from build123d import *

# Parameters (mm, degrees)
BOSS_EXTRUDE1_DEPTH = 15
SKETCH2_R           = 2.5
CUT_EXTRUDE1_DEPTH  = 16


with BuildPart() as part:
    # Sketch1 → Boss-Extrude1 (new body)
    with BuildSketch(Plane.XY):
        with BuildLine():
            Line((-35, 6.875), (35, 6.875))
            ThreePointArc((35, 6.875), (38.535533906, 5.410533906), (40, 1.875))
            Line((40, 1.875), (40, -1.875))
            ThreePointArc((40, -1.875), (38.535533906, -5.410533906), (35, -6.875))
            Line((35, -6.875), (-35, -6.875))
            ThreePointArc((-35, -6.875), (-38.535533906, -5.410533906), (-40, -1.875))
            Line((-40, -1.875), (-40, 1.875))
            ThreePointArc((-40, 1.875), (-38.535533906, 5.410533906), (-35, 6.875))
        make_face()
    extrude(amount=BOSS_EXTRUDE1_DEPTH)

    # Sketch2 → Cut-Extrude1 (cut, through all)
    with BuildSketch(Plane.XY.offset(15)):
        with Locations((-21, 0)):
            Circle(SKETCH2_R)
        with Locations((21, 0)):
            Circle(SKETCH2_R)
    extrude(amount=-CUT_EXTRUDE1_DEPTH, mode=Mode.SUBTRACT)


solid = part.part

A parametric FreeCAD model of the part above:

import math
import FreeCAD as App
import Part
import Sketcher
from FreeCAD import Vector

doc = App.newDocument("Part")
body = doc.addObject("PartDesign::Body", "Body")

# Sketch on XY plane
sketch1 = doc.addObject("Sketcher::SketchObject", "Sketch")
body.addObject(sketch1)
sketch1.AttachmentSupport = (doc.XY_Plane, [""])
sketch1.MapMode = "FlatFace"
sketch1.addGeometry([
    Part.LineSegment(Vector(35, 6.9, 0), Vector(-35, 6.9, 0)),  # 0
    Part.ArcOfCircle(Part.Circle(Vector(-35, 1.9, 0), Vector(0, 0, 1), 5), math.radians(90), math.radians(180)),  # 1
    Part.LineSegment(Vector(-40, 1.9, 0), Vector(-40, -1.9, 0)),  # 2
    Part.ArcOfCircle(Part.Circle(Vector(-35, -1.9, 0), Vector(0, 0, 1), 5), math.radians(180), math.radians(270)),  # 3
    Part.LineSegment(Vector(-35, -6.9, 0), Vector(35, -6.9, 0)),  # 4
    Part.ArcOfCircle(Part.Circle(Vector(35, -1.9, 0), Vector(0, 0, 1), 5), math.radians(-90), math.radians(0)),  # 5
    Part.LineSegment(Vector(40, -1.9, 0), Vector(40, 1.9, 0)),  # 6
    Part.ArcOfCircle(Part.Circle(Vector(35, 1.9, 0), Vector(0, 0, 1), 5), math.radians(0), math.radians(90)),  # 7
], False)
sketch1.addConstraint([
    Sketcher.Constraint("Tangent", 0, 2, 1, 1),
    Sketcher.Constraint("Tangent", 1, 2, 2, 1),
    Sketcher.Constraint("Tangent", 2, 2, 3, 1),
    Sketcher.Constraint("Tangent", 3, 2, 4, 1),
    Sketcher.Constraint("Tangent", 4, 2, 5, 1),
    Sketcher.Constraint("Tangent", 5, 2, 6, 1),
    Sketcher.Constraint("Tangent", 6, 2, 7, 1),
    Sketcher.Constraint("Tangent", 7, 2, 0, 1),
    Sketcher.Constraint("Horizontal", 0),
    Sketcher.Constraint("Vertical", 2),
    Sketcher.Constraint("Horizontal", 4),
    Sketcher.Constraint("Vertical", 6),
    Sketcher.Constraint("Equal", 1, 3),
    Sketcher.Constraint("Equal", 3, 5),
    Sketcher.Constraint("Equal", 5, 7),
    Sketcher.Constraint("Symmetric", 1, 3, 5, 3, -1, 1),
    Sketcher.Constraint("Radius", 1, 5.0),
    Sketcher.Constraint("DistanceX", 0, 2, 0, 1, 70.0),
    Sketcher.Constraint("DistanceY", 2, 2, 2, 1, 3.75),
])
pad1 = doc.addObject("PartDesign::Pad", "Pad")
body.addObject(pad1)
pad1.Profile = sketch1
pad1.Length = 15

# Sketch on XY plane
sketch2 = doc.addObject("Sketcher::SketchObject", "Sketch001")
body.addObject(sketch2)
sketch2.AttachmentSupport = (doc.XY_Plane, [""])
sketch2.MapMode = "FlatFace"
sketch2.AttachmentOffset = App.Placement(Vector(0, 0, 15), App.Rotation())
sketch2.addGeometry([
    Part.Circle(Vector(-21, 0, 0), Vector(0, 0, 1), 2.5),
    Part.Circle(Vector(21, 0, 0), Vector(0, 0, 1), 2.5),
], False)
sketch2.addConstraint([
    Sketcher.Constraint("Equal", 0, 1),
    Sketcher.Constraint("Symmetric", 0, 3, 1, 3, -1, 1),
    Sketcher.Constraint("PointOnObject", 0, 3, -1),
    Sketcher.Constraint("Diameter", 0, 5.0),
    Sketcher.Constraint("DistanceX", 0, 3, -1, 1, 21.0),
])
pocket1 = doc.addObject("PartDesign::Pocket", "Pocket")
body.addObject(pocket1)
pocket1.Profile = sketch2
pocket1.Type = "ThroughAll"

doc.recompute()
